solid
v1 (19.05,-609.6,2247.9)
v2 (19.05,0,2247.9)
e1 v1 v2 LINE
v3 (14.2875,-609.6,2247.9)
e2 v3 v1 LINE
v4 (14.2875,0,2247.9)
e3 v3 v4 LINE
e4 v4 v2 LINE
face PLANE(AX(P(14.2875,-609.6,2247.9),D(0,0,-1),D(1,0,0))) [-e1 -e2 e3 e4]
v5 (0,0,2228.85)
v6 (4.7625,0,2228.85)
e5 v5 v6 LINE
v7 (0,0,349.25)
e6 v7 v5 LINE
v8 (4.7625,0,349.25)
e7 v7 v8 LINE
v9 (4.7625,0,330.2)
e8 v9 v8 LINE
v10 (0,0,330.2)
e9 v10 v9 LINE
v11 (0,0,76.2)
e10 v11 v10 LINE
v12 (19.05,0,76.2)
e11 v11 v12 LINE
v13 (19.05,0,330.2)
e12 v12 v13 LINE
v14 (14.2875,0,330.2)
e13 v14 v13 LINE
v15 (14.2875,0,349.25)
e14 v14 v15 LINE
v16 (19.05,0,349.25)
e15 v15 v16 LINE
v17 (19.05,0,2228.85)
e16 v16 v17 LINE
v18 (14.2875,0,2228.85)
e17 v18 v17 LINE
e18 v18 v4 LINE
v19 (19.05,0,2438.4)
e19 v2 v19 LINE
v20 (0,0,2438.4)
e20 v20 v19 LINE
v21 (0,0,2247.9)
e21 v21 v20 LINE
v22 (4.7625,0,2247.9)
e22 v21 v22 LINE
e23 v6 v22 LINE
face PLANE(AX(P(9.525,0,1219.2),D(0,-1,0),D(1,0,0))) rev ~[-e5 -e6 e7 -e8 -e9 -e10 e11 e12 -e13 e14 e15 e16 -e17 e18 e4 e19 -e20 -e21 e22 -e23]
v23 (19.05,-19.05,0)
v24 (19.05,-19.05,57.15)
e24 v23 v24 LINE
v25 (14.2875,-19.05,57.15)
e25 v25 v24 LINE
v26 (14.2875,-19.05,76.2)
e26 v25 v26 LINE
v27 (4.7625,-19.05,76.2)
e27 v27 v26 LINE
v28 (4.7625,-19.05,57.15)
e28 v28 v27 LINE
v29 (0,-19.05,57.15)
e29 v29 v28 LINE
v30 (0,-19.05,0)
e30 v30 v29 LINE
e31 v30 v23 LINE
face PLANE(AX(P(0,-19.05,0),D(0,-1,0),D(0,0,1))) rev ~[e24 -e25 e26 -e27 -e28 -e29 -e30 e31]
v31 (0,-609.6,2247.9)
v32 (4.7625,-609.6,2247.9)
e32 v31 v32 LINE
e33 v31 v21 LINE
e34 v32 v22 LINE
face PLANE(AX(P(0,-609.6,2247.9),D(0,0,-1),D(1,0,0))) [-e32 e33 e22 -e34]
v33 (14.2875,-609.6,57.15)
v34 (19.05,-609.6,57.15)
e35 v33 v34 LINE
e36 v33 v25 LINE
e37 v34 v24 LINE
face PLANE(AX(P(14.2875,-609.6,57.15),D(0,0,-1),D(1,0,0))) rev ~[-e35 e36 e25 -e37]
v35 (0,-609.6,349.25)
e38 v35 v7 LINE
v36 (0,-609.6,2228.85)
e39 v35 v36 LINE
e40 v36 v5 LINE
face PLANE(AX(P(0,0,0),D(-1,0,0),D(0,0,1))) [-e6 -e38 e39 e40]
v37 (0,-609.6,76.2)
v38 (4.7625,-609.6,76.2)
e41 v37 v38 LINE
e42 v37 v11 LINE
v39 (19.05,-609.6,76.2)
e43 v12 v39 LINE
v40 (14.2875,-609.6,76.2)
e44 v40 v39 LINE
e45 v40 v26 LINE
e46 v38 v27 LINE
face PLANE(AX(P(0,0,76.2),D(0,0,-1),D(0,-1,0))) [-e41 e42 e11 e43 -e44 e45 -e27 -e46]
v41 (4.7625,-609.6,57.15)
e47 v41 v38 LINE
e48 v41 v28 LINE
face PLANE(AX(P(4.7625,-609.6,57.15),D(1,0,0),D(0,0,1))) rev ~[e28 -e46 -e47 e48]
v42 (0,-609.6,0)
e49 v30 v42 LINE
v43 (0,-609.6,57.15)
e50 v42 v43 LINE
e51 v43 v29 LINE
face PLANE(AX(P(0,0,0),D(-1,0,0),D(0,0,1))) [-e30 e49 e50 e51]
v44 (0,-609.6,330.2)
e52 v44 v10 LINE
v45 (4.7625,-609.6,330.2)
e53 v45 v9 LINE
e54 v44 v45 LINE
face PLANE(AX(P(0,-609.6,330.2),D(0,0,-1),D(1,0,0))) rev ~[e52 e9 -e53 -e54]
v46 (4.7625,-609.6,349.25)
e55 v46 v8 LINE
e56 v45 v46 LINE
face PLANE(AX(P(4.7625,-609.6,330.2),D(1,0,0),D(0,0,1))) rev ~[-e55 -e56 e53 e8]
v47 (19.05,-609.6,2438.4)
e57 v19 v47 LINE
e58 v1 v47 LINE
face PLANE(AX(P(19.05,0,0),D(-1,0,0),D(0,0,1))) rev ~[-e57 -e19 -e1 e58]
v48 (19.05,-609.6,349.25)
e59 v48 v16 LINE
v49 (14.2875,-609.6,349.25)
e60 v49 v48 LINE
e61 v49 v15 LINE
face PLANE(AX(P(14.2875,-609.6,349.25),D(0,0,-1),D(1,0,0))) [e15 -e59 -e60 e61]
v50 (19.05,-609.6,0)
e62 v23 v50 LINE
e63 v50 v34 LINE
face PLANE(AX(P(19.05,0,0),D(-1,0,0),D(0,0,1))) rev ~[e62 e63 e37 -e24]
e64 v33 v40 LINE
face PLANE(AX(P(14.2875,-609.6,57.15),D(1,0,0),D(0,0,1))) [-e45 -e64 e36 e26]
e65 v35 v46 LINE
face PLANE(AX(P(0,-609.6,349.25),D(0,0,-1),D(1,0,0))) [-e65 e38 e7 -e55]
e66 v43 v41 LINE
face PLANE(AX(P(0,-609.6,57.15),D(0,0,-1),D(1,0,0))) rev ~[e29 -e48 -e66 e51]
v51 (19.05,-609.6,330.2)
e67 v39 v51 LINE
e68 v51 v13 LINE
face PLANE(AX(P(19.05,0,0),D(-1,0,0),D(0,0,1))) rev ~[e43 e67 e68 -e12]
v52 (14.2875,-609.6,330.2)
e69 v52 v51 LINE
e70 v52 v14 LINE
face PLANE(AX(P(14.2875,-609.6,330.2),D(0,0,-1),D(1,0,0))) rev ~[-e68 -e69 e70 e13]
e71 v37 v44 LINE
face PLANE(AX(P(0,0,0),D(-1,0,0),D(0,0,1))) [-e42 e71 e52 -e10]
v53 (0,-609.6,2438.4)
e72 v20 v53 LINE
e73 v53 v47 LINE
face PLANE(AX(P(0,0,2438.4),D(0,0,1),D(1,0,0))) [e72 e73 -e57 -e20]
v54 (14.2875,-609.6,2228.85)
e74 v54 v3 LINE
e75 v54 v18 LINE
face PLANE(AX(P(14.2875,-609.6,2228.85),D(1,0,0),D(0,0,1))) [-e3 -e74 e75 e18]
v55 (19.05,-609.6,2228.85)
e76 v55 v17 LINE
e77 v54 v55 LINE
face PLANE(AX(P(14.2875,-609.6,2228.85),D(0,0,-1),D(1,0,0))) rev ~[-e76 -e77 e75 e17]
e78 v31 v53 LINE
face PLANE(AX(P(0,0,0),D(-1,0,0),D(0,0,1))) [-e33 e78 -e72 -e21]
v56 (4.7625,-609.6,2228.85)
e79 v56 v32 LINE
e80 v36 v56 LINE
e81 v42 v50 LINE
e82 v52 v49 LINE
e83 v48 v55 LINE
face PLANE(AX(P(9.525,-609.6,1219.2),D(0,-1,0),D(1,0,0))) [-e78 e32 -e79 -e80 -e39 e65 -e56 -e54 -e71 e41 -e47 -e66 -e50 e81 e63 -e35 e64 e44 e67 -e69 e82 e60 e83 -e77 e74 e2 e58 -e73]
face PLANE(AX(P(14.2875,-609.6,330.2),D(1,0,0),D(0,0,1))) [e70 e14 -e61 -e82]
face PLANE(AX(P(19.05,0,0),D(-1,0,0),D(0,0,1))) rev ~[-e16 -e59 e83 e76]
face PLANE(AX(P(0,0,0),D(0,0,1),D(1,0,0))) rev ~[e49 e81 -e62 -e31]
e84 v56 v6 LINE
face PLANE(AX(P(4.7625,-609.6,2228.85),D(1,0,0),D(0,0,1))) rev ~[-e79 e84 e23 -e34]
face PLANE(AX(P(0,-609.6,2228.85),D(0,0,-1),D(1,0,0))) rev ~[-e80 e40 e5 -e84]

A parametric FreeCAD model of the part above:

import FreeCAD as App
import Part
import Sketcher

V = App.Vector
Q = App.Units.Quantity

doc = App.newDocument("Part")
params = doc.addObject("Spreadsheet::Sheet", "Params")
for row, (alias, value) in enumerate([
    ("sketch1_height", "96 in"),
    ("sketch1_width", "0.75 in"),
    ("pad1_length", "24 in"),
    ("sketch2_height", "3 in"),
    ("sketch2_width", "0.75 in"),
    ("sketch3_height", "0.75 in"),
    ("sketch3_width", "0.1875 in"),
], start=1):
    params.set(f"A{row}", alias)
    params.set(f"B{row}", "=" + value)
    params.setAlias(f"B{row}", alias)

body = doc.addObject("PartDesign::Body", "Body")

# Sketch on XZ plane
sketch1 = doc.addObject("Sketcher::SketchObject", "Sketch")
body.addObject(sketch1)
sketch1.AttachmentSupport = (doc.XZ_Plane, [""])
sketch1.MapMode = "FlatFace"
sketch1.addGeometry([
    Part.LineSegment(V(0, 2438.4, 0), V(0, 0, 0)),
    Part.LineSegment(V(0, 0, 0), V(19.05, 0, 0)),
    Part.LineSegment(V(19.05, 0, 0), V(19.05, 2438.4, 0)),
    Part.LineSegment(V(19.05, 2438.4, 0), V(0, 2438.4, 0)),
], False)
sketch1.addConstraint([
    Sketcher.Constraint("Coincident", 0, 2, 1, 1),
    Sketcher.Constraint("Coincident", 1, 2, 2, 1),
    Sketcher.Constraint("Coincident", 2, 2, 3, 1),
    Sketcher.Constraint("Coincident", 3, 2, 0, 1),
    Sketcher.Constraint("Vertical", 0),
    Sketcher.Constraint("Horizontal", 1),
    Sketcher.Constraint("Vertical", 2),
    Sketcher.Constraint("Horizontal", 3),
    Sketcher.Constraint("Coincident", 0, 2, -1, 1),
    Sketcher.Constraint("DistanceY", 0, 2, 0, 1, Q("96 in")),
    Sketcher.Constraint("DistanceX", 1, 1, 1, 2, Q("0.75 in")),
])
sketch1.setExpression("Constraints[9]", "Params.sketch1_height")
sketch1.setExpression("Constraints[10]", "Params.sketch1_width")
pad1 = doc.addObject("PartDesign::Pad", "Pad")
body.addObject(pad1)
pad1.Profile = sketch1
pad1.setExpression("Length", "Params.pad1_length")

# Sketch on YZ plane
sketch2 = doc.addObject("Sketcher::SketchObject", "Sketch001")
body.addObject(sketch2)
sketch2.AttachmentSupport = (doc.YZ_Plane, [""])
sketch2.MapMode = "FlatFace"
sketch2.addGeometry([
    Part.LineSegment(V(0, 76.2, 0), V(0, 0, 0)),
    Part.LineSegment(V(0, 0, 0), V(-19.05, 0, 0)),
    Part.LineSegment(V(-19.05, 0, 0), V(-19.05, 76.2, 0)),
    Part.LineSegment(V(-19.05, 76.2, 0), V(0, 76.2, 0)),
], False)
sketch2.addConstraint([
    Sketcher.Constraint("Coincident", 0, 2, 1, 1),
    Sketcher.Constraint("Coincident", 1, 2, 2, 1),
    Sketcher.Constraint("Coincident", 2, 2, 3, 1),
    Sketcher.Constraint("Coincident", 3, 2, 0, 1),
    Sketcher.Constraint("Vertical", 0),
    Sketcher.Constraint("Horizontal", 1),
    Sketcher.Constraint("Vertical", 2),
    Sketcher.Constraint("Horizontal", 3),
    Sketcher.Constraint("Coincident", 0, 2, -1, 1),
    Sketcher.Constraint("DistanceY", 0, 2, 0, 1, Q("3 in")),
    Sketcher.Constraint("DistanceX", 1, 2, 1, 1, Q("0.75 in")),
])
sketch2.setExpression("Constraints[9]", "Params.sketch2_height")
sketch2.setExpression("Constraints[10]", "Params.sketch2_width")
pocket1 = doc.addObject("PartDesign::Pocket", "Pocket")
body.addObject(pocket1)
pocket1.Profile = sketch2
pocket1.Type = "ThroughAll"
pocket1.Reversed = True

# Sketch on XZ plane
sketch3 = doc.addObject("Sketcher::SketchObject", "Sketch002")
body.addObject(sketch3)
sketch3.AttachmentSupport = (doc.XZ_Plane, [""])
sketch3.MapMode = "FlatFace"
sketch3.AttachmentOffset = App.Placement(V(0, 0, 24 * 25.4), App.Rotation())
sketch3.addGeometry([
    Part.LineSegment(V(0, 76.2, 0), V(0, 57.15, 0)),  # 0
    Part.LineSegment(V(0, 57.15, 0), V(4.7625, 57.15, 0)),  # 1
    Part.LineSegment(V(4.7625, 57.15, 0), V(4.7625, 76.2, 0)),  # 2
    Part.LineSegment(V(4.7625, 76.2, 0), V(0, 76.2, 0)),  # 3
    Part.LineSegment(V(14.2875, 76.2, 0), V(14.2875, 57.15, 0)),  # 4
    Part.LineSegment(V(14.2875, 57.15, 0), V(19.05, 57.15, 0)),  # 5
    Part.LineSegment(V(19.05, 57.15, 0), V(19.05, 76.2, 0)),  # 6
    Part.LineSegment(V(19.05, 76.2, 0), V(14.2875, 76.2, 0)),  # 7
    Part.LineSegment(V(0, 2247.9, 0), V(0, 2228.85, 0)),  # 8
    Part.LineSegment(V(0, 2228.85, 0), V(4.7625, 2228.85, 0)),  # 9
    Part.LineSegment(V(4.7625, 2228.85, 0), V(4.7625, 2247.9, 0)),  # 10
    Part.LineSegment(V(4.7625, 2247.9, 0), V(0, 2247.9, 0)),  # 11
    Part.LineSegment(V(14.2875, 2247.9, 0), V(14.2875, 2228.85, 0)),  # 12
    Part.LineSegment(V(14.2875, 2228.85, 0), V(19.05, 2228.85, 0)),  # 13
    Part.LineSegment(V(19.05, 2228.85, 0), V(19.05, 2247.9, 0)),  # 14
    Part.LineSegment(V(19.05, 2247.9, 0), V(14.2875, 2247.9, 0)),  # 15
    Part.LineSegment(V(14.2875, 349.25, 0), V(14.2875, 330.2, 0)),  # 16
    Part.LineSegment(V(14.2875, 330.2, 0), V(19.05, 330.2, 0)),  # 17
    Part.LineSegment(V(19.05, 330.2, 0), V(19.05, 349.25, 0)),  # 18
    Part.LineSegment(V(19.05, 349.25, 0), V(14.2875, 349.25, 0)),  # 19
    Part.LineSegment(V(0, 349.25, 0), V(0, 330.2, 0)),  # 20
    Part.LineSegment(V(0, 330.2, 0), V(4.7625, 330.2, 0)),  # 21
    Part.LineSegment(V(4.7625, 330.2, 0), V(4.7625, 349.25, 0)),  # 22
    Part.LineSegment(V(4.7625, 349.25, 0), V(0, 349.25, 0)),  # 23
], False)
sketch3.addConstraint([
    Sketcher.Constraint("Coincident", 0, 2, 1, 1),
    Sketcher.Constraint("Coincident", 1, 2, 2, 1),
    Sketcher.Constraint("Coincident", 2, 2, 3, 1),
    Sketcher.Constraint("Coincident", 3, 2, 0, 1),
    Sketcher.Constraint("Coincident", 4, 2, 5, 1),
    Sketcher.Constraint("Coincident", 5, 2, 6, 1),
    Sketcher.Constraint("Coincident", 6, 2, 7, 1),
    Sketcher.Constraint("Coincident", 7, 2, 4, 1),
    Sketcher.Constraint("Coincident", 8, 2, 9, 1),
    Sketcher.Constraint("Coincident", 9, 2, 10, 1),
    Sketcher.Constraint("Coincident", 10, 2, 11, 1),
    Sketcher.Constraint("Coincident", 11, 2, 8, 1),
    Sketcher.Constraint("Coincident", 12, 2, 13, 1),
    Sketcher.Constraint("Coincident", 13, 2, 14, 1),
    Sketcher.Constraint("Coincident", 14, 2, 15, 1),
    Sketcher.Constraint("Coincident", 15, 2, 12, 1),
    Sketcher.Constraint("Coincident", 16, 2, 17, 1),
    Sketcher.Constraint("Coincident", 17, 2, 18, 1),
    Sketcher.Constraint("Coincident", 18, 2, 19, 1),
    Sketcher.Constraint("Coincident", 19, 2, 16, 1),
    Sketcher.Constraint("Coincident", 20, 2, 21, 1),
    Sketcher.Constraint("Coincident", 21, 2, 22, 1),
    Sketcher.Constraint("Coincident", 22, 2, 23, 1),
    Sketcher.Constraint("Coincident", 23, 2, 20, 1),
    Sketcher.Constraint("Vertical", 0),
    Sketcher.Constraint("Horizontal", 1),
    Sketcher.Constraint("Vertical", 2),
    Sketcher.Constraint("Horizontal", 3),
    Sketcher.Constraint("Vertical", 4),
    Sketcher.Constraint("Horizontal", 5),
    Sketcher.Constraint("Vertical", 6),
    Sketcher.Constraint("Horizontal", 7),
    Sketcher.Constraint("Vertical", 8),
    Sketcher.Constraint("Horizontal", 9),
    Sketcher.Constraint("Vertical", 10),
    Sketcher.Constraint("Horizontal", 11),
    Sketcher.Constraint("Vertical", 12),
    Sketcher.Constraint("Horizontal", 13),
    Sketcher.Constraint("Vertical", 14),
    Sketcher.Constraint("Horizontal", 15),
    Sketcher.Constraint("Vertical", 16),
    Sketcher.Constraint("Horizontal", 17),
    Sketcher.Constraint("Vertical", 18),
    Sketcher.Constraint("Horizontal", 19),
    Sketcher.Constraint("Vertical", 20),
    Sketcher.Constraint("Horizontal", 21),
    Sketcher.Constraint("Vertical", 22),
    Sketcher.Constraint("Horizontal", 23),
    Sketcher.Constraint("PointOnObject", 0, 2, -2),
    Sketcher.Constraint("PointOnObject", 8, 2, -2),
    Sketcher.Constraint("PointOnObject", 20, 2, -2),
    Sketcher.Constraint("Horizontal", 1, 2, 4, 2),
    Sketcher.Constraint("Horizontal", 3, 2, 6, 2),
    Sketcher.Constraint("Horizontal", 9, 2, 12, 2),
    Sketcher.Constraint("Horizontal", 11, 2, 14, 2),
    Sketcher.Constraint("Horizontal", 17, 2, 20, 2),
    Sketcher.Constraint("Horizontal", 19, 2, 22, 2),
    Sketcher.Constraint("Vertical", 2, 2, 9, 2),
    Sketcher.Constraint("Vertical", 7, 2, 12, 2),
    Sketcher.Constraint("Vertical", 6, 2, 13, 2),
    Sketcher.Constraint("Vertical", 15, 2, 16, 2),
    Sketcher.Constraint("Vertical", 14, 2, 17, 2),
    Sketcher.Constraint("Vertical", 10, 2, 21, 2),
    Sketcher.Constraint("Equal", 3, 5),
    Sketcher.Constraint("Equal", 6, 8),
    Sketcher.Constraint("Equal", 14, 16),
    Sketcher.Constraint("DistanceY", -1, 1, 2, 2, Q("3 in")),
    Sketcher.Constraint("DistanceY", -1, 1, 16, 2, Q("13 in")),
    Sketcher.Constraint("DistanceY", 0, 2, 0, 1, Q("0.75 in")),
    Sketcher.Constraint("DistanceY", -1, 1, 10, 2, Q("88.5 in")),
    Sketcher.Constraint("DistanceX", 1, 1, 1, 2, Q("0.1875 in")),
    Sketcher.Constraint("DistanceX", -1, 1, 5, 2, Q("0.75 in")),
])
sketch3.setExpression("Constraints[68]", "Params.sketch3_height")
sketch3.setExpression("Constraints[70]", "Params.sketch3_width")
pocket2 = doc.addObject("PartDesign::Pocket", "Pocket001")
body.addObject(pocket2)
pocket2.Profile = sketch3
pocket2.Type = "ThroughAll"

doc.recompute()
